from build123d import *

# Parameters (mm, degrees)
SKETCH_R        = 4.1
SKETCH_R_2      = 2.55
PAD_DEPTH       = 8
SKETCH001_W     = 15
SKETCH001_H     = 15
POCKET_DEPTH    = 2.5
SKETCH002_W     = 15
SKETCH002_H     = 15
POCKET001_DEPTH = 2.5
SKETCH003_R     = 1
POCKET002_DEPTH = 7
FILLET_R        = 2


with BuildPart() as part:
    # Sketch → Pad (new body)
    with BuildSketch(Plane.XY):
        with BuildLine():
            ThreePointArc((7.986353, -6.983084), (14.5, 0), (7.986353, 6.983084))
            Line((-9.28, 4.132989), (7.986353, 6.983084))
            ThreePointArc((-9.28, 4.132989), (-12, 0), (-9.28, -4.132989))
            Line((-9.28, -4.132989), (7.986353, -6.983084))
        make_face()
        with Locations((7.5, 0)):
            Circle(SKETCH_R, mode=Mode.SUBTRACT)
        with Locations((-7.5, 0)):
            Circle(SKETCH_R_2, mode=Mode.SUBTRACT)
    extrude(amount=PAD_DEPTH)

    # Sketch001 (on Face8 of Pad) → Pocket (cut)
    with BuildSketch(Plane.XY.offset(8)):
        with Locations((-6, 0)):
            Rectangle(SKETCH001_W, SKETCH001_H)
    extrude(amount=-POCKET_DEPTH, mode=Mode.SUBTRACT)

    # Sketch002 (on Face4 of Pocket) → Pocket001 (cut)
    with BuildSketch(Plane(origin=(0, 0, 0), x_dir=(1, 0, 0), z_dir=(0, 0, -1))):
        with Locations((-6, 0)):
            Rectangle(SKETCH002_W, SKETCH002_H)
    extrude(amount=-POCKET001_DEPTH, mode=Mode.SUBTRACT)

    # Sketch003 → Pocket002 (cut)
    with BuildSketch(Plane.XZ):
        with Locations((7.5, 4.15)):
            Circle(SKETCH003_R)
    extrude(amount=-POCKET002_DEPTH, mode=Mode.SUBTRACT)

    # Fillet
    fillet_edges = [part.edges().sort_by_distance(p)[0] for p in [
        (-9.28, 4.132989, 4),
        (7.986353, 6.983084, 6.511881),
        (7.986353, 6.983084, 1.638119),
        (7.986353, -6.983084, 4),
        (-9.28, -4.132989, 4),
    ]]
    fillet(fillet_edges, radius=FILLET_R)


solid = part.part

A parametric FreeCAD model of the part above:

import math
import FreeCAD as App
import Part
import Sketcher
Q = App.Units.Quantity


def edges_at(feature, points):
    """Names of the edges that pass closest to the given points."""
    edges = feature.Shape.Edges
    near = lambda p: min(range(len(edges)), key=lambda i: edges[i].distToShape(Part.Vertex(*p))[0])
    return sorted({f"Edge{near(p) + 1}" for p in points})


def add_polygon(sketch, points):
    """Adds a closed chain of lines whose ends are joined by coincident constraints."""
    first, n = sketch.GeometryCount, len(points)
    for a, b in zip(points, points[1:] + points[:1]):
        sketch.addGeometry(Part.LineSegment(App.Vector(*a, 0), App.Vector(*b, 0)), False)
    for i in range(n):
        sketch.addConstraint(Sketcher.Constraint("Coincident", first + i, 2, first + (i + 1) % n, 1))

doc = App.newDocument("Part")
body = doc.addObject("PartDesign::Body", "Body")

# Sketch on XY plane
sketch1 = body.newObject("Sketcher::SketchObject", "Sketch")
sketch1.AttachmentSupport = (doc.getObject("XY_Plane"), [""])
sketch1.MapMode = "FlatFace"
sketch1.addGeometry(Part.ArcOfCircle(Part.Circle(App.Vector(7.5, 0, 0), App.Vector(0, 0, 1), 7), math.radians(-86), math.radians(86)), False)
sketch1.addGeometry(Part.LineSegment(App.Vector(8, 7, 0), App.Vector(-9.3, 4.1, 0)), False)
sketch1.addGeometry(Part.ArcOfCircle(Part.Circle(App.Vector(-7.5, 0, 0), App.Vector(0, 0, 1), 4.5), math.radians(113), math.radians(247)), False)
sketch1.addGeometry(Part.LineSegment(App.Vector(-9.3, -4.1, 0), App.Vector(8, -7, 0)), False)
sketch1.addGeometry(Part.Circle(App.Vector(-7.5, 0, 0), App.Vector(0, 0, 1), 2.5), False)
sketch1.addGeometry(Part.Circle(App.Vector(7.5, 0, 0), App.Vector(0, 0, 1), 4.1), False)
sketch1.addConstraint(Sketcher.Constraint("Coincident", 0, 2, 1, 1))
sketch1.addConstraint(Sketcher.Constraint("Coincident", 1, 2, 2, 1))
sketch1.addConstraint(Sketcher.Constraint("Coincident", 2, 2, 3, 1))
sketch1.addConstraint(Sketcher.Constraint("Coincident", 3, 2, 0, 1))
sketch1.addConstraint(Sketcher.Constraint("Coincident", 4, 3, 2, 3))
sketch1.addConstraint(Sketcher.Constraint("Coincident", 5, 3, 0, 3))
sketch1.addConstraint(Sketcher.Constraint("Symmetric", 0, 3, 2, 3, -1, 1))
sketch1.addConstraint(Sketcher.Constraint("Symmetric", 1, 2, 2, 2, -1))
sketch1.addConstraint(Sketcher.Constraint("Vertical", 0, 2, 3, 2))
sketch1.addConstraint(Sketcher.Constraint("Radius", 0, Q("7 mm")))
sketch1.addConstraint(Sketcher.Constraint("Diameter", 4, Q("5.1 mm")))
sketch1.addConstraint(Sketcher.Constraint("Diameter", 5, Q("8.2 mm")))
sketch1.addConstraint(Sketcher.Constraint("Radius", 2, Q("4.5 mm")))
sketch1.addConstraint(Sketcher.Constraint("DistanceX", 2, 3, 0, 3, Q("15 mm")))
sketch1.addConstraint(Sketcher.Constraint("Distance", 1, Q("17.5 mm")))
sketch1.addConstraint(Sketcher.Constraint("DistanceX", 1, 2, -1, 1, Q("9.28 mm")))
pad1 = body.newObject("PartDesign::Pad", "Pad")
pad1.Profile = sketch1
pad1.Length = 8

# Sketch on XY plane
sketch2 = body.newObject("Sketcher::SketchObject", "Sketch001")
sketch2.AttachmentSupport = (doc.getObject("XY_Plane"), [""])
sketch2.MapMode = "FlatFace"
sketch2.AttachmentOffset = App.Placement(App.Vector(0, 0, 8), App.Rotation())
add_polygon(sketch2, [(-14, 8), (-14, -8), (2, -8), (2, 8)])  # lines 0-3
sketch2.addConstraint(Sketcher.Constraint("Vertical", 0))
sketch2.addConstraint(Sketcher.Constraint("Horizontal", 1))
sketch2.addConstraint(Sketcher.Constraint("Vertical", 2))
sketch2.addConstraint(Sketcher.Constraint("Horizontal", 3))
sketch2.addConstraint(Sketcher.Constraint("Equal", 3, 0))
sketch2.addConstraint(Sketcher.Constraint("DistanceX", 1, 1, 1, 2, Q("15 mm")))
sketch2.addConstraint(Sketcher.Constraint("DistanceX", 0, 2, -1, 1, Q("13.5 mm")))
sketch2.addConstraint(Sketcher.Constraint("DistanceY", 0, 2, -1, 1, Q("7.5 mm")))
pocket1 = body.newObject("PartDesign::Pocket", "Pocket")
pocket1.Profile = sketch2
pocket1.Length = 2.5

# Sketch on XY plane
sketch3 = body.newObject("Sketcher::SketchObject", "Sketch002")
sketch3.AttachmentSupport = (doc.getObject("XY_Plane"), [""])
sketch3.MapMode = "FlatFace"
add_polygon(sketch3, [(-14, -8), (-14, 8), (2, 8), (2, -8)])  # lines 0-3
sketch3.addConstraint(Sketcher.Constraint("Vertical", 0))
sketch3.addConstraint(Sketcher.Constraint("Horizontal", 1))
sketch3.addConstraint(Sketcher.Constraint("Vertical", 2))
sketch3.addConstraint(Sketcher.Constraint("Horizontal", 3))
sketch3.addConstraint(Sketcher.Constraint("Equal", 3, 0))
sketch3.addConstraint(Sketcher.Constraint("DistanceX", 1, 1, 1, 2, Q("15 mm")))
sketch3.addConstraint(Sketcher.Constraint("DistanceX", 0, 2, -1, 1, Q("13.5 mm")))
sketch3.addConstraint(Sketcher.Constraint("DistanceY", -1, 1, 0, 2, Q("7.5 mm")))
pocket2 = body.newObject("PartDesign::Pocket", "Pocket001")
pocket2.Profile = sketch3
pocket2.Length = 2.5
pocket2.Reversed = True

# Sketch on XZ plane
sketch4 = body.newObject("Sketcher::SketchObject", "Sketch003")
sketch4.AttachmentSupport = (doc.getObject("XZ_Plane"), [""])
sketch4.MapMode = "FlatFace"
sketch4.addGeometry(Part.Circle(App.Vector(7.5, 4.2, 0), App.Vector(0, 0, 1), 1), False)
sketch4.addConstraint(Sketcher.Constraint("Diameter", 0, Q("2 mm")))
sketch4.addConstraint(Sketcher.Constraint("DistanceX", -1, 1, 0, 3, Q("7.5 mm")))
sketch4.addConstraint(Sketcher.Constraint("DistanceY", -1, 1, 0, 3, Q("4.15 mm")))
pocket3 = body.newObject("PartDesign::Pocket", "Pocket002")
pocket3.Profile = sketch4
pocket3.Length = 7
doc.recompute()

fillet = body.newObject("PartDesign::Fillet", "Fillet")
fillet.Base = (pocket3, edges_at(pocket3, [
    (-9.28, 4.133, 4),
    (7.986, 6.983, 6.512),
    (7.986, 6.983, 1.638),
    (7.986, -6.983, 4),
    (-9.28, -4.133, 4),
]))
fillet.Radius = 2

doc.recompute()
